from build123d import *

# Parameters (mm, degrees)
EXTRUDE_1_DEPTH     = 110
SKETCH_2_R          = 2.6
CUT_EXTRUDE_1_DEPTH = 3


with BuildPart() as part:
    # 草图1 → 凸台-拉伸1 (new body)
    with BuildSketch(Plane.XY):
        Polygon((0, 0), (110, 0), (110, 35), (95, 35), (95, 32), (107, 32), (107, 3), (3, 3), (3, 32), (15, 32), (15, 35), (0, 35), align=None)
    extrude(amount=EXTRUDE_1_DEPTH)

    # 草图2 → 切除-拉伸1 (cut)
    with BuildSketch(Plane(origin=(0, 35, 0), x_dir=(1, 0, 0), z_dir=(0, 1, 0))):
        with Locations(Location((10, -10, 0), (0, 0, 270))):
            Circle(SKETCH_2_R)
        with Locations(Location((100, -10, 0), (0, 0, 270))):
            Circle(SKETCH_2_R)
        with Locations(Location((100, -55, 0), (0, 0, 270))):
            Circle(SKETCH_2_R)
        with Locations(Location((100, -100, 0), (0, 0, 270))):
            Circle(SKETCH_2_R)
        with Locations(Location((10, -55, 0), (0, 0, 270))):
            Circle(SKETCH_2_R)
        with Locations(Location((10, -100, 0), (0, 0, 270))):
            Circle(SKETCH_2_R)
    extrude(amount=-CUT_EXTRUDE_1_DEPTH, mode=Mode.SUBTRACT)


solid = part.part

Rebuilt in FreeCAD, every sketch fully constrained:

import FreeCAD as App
import Part
import Sketcher
from FreeCAD import Vector


def add_polygon(sketch, points):
    """Adds a closed chain of lines whose ends are joined by coincident constraints."""
    first, n = sketch.GeometryCount, len(points)
    for a, b in zip(points, points[1:] + points[:1]):
        sketch.addGeometry(Part.LineSegment(App.Vector(*a, 0), App.Vector(*b, 0)), False)
    for i in range(n):
        sketch.addConstraint(Sketcher.Constraint("Coincident", first + i, 2, first + (i + 1) % n, 1))

doc = App.newDocument("Part")
body = doc.addObject("PartDesign::Body", "Body")

sketch1 = body.newObject("Sketcher::SketchObject", "Sketch")
sketch1.AttachmentSupport = (doc.getObject("XY_Plane"), [""])
sketch1.MapMode = "FlatFace"
add_polygon(sketch1, [(0, 0), (110, 0), (110, 35), (95, 35), (95, 32), (107, 32), (107, 3), (3, 3), (3, 32), (15, 32), (15, 35), (0, 35)])
sketch1.addConstraint(Sketcher.Constraint("Horizontal", 0))
sketch1.addConstraint(Sketcher.Constraint("Vertical", 1))
sketch1.addConstraint(Sketcher.Constraint("Horizontal", 2))
sketch1.addConstraint(Sketcher.Constraint("Vertical", 3))
sketch1.addConstraint(Sketcher.Constraint("Horizontal", 4))
sketch1.addConstraint(Sketcher.Constraint("Vertical", 5))
sketch1.addConstraint(Sketcher.Constraint("Horizontal", 6))
sketch1.addConstraint(Sketcher.Constraint("Vertical", 7))
sketch1.addConstraint(Sketcher.Constraint("Horizontal", 8))
sketch1.addConstraint(Sketcher.Constraint("Vertical", 9))
sketch1.addConstraint(Sketcher.Constraint("Horizontal", 10))
sketch1.addConstraint(Sketcher.Constraint("Vertical", 11))
sketch1.addConstraint(Sketcher.Constraint("Coincident", 11, 2, -1, 1))
sketch1.addConstraint(Sketcher.Constraint("Horizontal", 4, 2, 7, 2))
sketch1.addConstraint(Sketcher.Constraint("Horizontal", 2, 2, 9, 2))
sketch1.addConstraint(Sketcher.Constraint("Equal", 4, 8))
sketch1.addConstraint(Sketcher.Constraint("Equal", 2, 10))
sketch1.addConstraint(Sketcher.Constraint("DistanceX", 0, 1, 0, 2, 110.0))
sketch1.addConstraint(Sketcher.Constraint("DistanceX", 2, 2, 2, 1, 15.0))
sketch1.addConstraint(Sketcher.Constraint("DistanceX", 4, 1, 4, 2, 12.0))
sketch1.addConstraint(Sketcher.Constraint("DistanceY", 1, 1, 1, 2, 35.0))
sketch1.addConstraint(Sketcher.Constraint("DistanceY", 3, 2, 3, 1, 3.0))
sketch1.addConstraint(Sketcher.Constraint("DistanceY", 5, 2, 5, 1, 29.0))
pad1 = body.newObject("PartDesign::Pad", "Pad")
pad1.Profile = sketch1
pad1.Length = 110

sketch2 = body.newObject("Sketcher::SketchObject", "Sketch001")
sketch2.AttachmentSupport = (doc.getObject("XZ_Plane"), [""])
sketch2.MapMode = "FlatFace"
sketch2.AttachmentOffset = App.Placement(Vector(0, 0, -35), App.Rotation())
sketch2.addGeometry(Part.Circle(Vector(10, 10, 0), Vector(0, 0, 1), 2.6), False)
sketch2.addGeometry(Part.Circle(Vector(100, 10, 0), Vector(0, 0, 1), 2.6), False)
sketch2.addGeometry(Part.Circle(Vector(100, 55, 0), Vector(0, 0, 1), 2.6), False)
sketch2.addGeometry(Part.Circle(Vector(100, 100, 0), Vector(0, 0, 1), 2.6), False)
sketch2.addGeometry(Part.Circle(Vector(10, 55, 0), Vector(0, 0, 1), 2.6), False)
sketch2.addGeometry(Part.Circle(Vector(10, 100, 0), Vector(0, 0, 1), 2.6), False)
sketch2.addConstraint(Sketcher.Constraint("Equal", 0, 1))
sketch2.addConstraint(Sketcher.Constraint("Equal", 1, 2))
sketch2.addConstraint(Sketcher.Constraint("Equal", 2, 3))
sketch2.addConstraint(Sketcher.Constraint("Equal", 3, 4))
sketch2.addConstraint(Sketcher.Constraint("Equal", 4, 5))
sketch2.addConstraint(Sketcher.Constraint("Horizontal", 0, 3, 1, 3))
sketch2.addConstraint(Sketcher.Constraint("Horizontal", 2, 3, 4, 3))
sketch2.addConstraint(Sketcher.Constraint("Horizontal", 3, 3, 5, 3))
sketch2.addConstraint(Sketcher.Constraint("Vertical", 1, 3, 2, 3))
sketch2.addConstraint(Sketcher.Constraint("Vertical", 2, 3, 3, 3))
sketch2.addConstraint(Sketcher.Constraint("Vertical", 0, 3, 4, 3))
sketch2.addConstraint(Sketcher.Constraint("Vertical", 4, 3, 5, 3))
sketch2.addConstraint(Sketcher.Constraint("Diameter", 0, 5.2))
sketch2.addConstraint(Sketcher.Constraint("DistanceX", -1, 1, 0, 3, 10.0))
sketch2.addConstraint(Sketcher.Constraint("DistanceY", -1, 1, 0, 3, 10.0))
sketch2.addConstraint(Sketcher.Constraint("DistanceX", -1, 1, 1, 3, 100.0))
sketch2.addConstraint(Sketcher.Constraint("DistanceY", -1, 1, 2, 3, 55.0))
sketch2.addConstraint(Sketcher.Constraint("DistanceY", -1, 1, 3, 3, 100.0))
pocket1 = body.newObject("PartDesign::Pocket", "Pocket")
pocket1.Profile = sketch2
pocket1.Length = 3
pocket1.Reversed = True

doc.recompute()
